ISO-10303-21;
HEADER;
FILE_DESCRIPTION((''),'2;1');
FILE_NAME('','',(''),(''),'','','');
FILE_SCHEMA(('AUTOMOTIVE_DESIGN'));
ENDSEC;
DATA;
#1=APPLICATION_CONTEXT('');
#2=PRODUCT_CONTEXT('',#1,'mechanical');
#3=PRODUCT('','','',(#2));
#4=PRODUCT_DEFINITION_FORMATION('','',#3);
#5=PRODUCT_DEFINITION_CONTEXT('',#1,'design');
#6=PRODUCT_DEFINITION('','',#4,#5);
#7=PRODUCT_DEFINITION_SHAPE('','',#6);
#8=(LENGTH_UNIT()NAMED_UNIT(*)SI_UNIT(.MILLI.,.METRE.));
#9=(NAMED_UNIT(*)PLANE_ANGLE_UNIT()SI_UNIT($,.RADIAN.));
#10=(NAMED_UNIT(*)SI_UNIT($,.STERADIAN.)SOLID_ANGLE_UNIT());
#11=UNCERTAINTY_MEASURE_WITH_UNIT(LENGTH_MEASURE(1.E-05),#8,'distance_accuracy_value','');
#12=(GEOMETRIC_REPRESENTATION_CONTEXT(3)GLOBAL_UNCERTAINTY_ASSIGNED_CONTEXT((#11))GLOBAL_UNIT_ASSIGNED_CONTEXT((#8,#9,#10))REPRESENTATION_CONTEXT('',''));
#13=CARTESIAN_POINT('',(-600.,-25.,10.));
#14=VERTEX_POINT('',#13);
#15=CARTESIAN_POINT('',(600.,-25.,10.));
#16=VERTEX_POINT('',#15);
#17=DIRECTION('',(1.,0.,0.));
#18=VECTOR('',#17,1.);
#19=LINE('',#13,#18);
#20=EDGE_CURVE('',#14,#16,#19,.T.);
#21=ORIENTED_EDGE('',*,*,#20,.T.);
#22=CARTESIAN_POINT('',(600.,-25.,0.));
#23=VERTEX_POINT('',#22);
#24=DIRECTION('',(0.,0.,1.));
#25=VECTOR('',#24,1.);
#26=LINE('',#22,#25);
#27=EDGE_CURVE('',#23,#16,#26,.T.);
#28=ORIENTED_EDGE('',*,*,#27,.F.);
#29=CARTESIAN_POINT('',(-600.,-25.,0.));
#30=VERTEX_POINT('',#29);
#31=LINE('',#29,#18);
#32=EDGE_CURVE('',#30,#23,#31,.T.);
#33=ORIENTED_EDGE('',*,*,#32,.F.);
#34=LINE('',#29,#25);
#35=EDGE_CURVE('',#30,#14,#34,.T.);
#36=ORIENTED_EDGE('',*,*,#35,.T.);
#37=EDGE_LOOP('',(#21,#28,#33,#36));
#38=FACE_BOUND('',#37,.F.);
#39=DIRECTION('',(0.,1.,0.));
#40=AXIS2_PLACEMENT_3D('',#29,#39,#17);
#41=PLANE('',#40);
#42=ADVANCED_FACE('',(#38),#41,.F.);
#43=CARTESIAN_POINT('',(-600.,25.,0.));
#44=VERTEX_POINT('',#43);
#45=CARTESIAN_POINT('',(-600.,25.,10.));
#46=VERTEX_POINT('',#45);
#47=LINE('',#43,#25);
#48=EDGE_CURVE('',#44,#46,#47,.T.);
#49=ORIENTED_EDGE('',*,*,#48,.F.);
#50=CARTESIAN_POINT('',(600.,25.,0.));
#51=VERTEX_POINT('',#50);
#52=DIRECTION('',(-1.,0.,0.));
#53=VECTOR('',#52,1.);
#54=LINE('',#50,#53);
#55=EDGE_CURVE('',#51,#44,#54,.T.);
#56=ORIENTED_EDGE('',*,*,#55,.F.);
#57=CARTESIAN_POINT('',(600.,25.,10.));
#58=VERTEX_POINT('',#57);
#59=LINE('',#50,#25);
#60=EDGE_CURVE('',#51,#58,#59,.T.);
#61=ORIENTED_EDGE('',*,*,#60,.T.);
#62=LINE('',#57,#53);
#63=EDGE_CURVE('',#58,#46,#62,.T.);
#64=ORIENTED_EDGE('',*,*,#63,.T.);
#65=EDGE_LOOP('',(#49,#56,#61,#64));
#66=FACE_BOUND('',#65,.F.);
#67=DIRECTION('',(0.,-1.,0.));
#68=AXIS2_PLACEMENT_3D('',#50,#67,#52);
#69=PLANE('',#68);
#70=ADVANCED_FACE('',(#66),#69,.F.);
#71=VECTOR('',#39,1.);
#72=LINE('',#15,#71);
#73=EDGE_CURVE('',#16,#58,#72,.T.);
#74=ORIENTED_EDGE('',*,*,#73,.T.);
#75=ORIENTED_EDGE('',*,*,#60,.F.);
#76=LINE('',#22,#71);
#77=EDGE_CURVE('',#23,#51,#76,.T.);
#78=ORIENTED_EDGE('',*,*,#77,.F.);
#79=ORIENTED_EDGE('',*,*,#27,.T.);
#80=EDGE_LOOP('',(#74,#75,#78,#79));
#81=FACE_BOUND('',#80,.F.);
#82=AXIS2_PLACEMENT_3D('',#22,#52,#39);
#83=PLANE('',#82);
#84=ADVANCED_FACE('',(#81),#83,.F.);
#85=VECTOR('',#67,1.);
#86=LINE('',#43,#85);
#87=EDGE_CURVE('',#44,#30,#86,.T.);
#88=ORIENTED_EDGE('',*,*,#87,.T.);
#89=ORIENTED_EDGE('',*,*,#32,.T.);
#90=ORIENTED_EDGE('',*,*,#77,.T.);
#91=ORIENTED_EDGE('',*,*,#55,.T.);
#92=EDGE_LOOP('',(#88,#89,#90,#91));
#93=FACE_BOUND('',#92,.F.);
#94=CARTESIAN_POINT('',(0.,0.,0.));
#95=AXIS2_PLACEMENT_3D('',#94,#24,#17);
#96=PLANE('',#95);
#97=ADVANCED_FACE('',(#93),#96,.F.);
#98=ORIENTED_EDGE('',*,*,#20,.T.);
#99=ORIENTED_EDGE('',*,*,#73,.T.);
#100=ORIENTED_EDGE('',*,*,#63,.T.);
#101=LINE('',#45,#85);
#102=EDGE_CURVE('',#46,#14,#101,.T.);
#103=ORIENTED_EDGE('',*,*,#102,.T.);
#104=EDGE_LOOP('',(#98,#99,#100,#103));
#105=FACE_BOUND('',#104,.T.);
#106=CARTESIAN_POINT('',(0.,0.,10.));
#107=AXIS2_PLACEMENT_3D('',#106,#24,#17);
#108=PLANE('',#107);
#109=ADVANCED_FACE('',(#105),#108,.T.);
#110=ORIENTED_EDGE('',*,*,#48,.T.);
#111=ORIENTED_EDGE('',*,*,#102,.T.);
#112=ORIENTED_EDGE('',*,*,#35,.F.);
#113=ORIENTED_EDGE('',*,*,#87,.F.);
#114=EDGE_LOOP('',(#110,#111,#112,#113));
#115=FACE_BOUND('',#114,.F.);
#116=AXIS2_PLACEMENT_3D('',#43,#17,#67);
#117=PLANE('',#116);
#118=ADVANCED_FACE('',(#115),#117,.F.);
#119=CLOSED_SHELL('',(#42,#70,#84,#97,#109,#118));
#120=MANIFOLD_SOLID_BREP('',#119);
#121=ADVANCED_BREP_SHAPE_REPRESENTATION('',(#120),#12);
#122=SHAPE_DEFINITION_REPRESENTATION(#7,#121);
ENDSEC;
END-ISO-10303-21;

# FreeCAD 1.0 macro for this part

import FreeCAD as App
import Part
import Sketcher
Q = App.Units.Quantity

doc = App.newDocument("Part")
body = doc.addObject("PartDesign::Body", "Body")

# Sketch on XY plane
sketch1 = body.newObject("Sketcher::SketchObject", "Sketch")
sketch1.AttachmentSupport = (doc.getObject("XY_Plane"), [""])
sketch1.MapMode = "FlatFace"
sketch1.addGeometry(Part.LineSegment(App.Vector(-600, 25, 0), App.Vector(-600, -25, 0)), False)
sketch1.addGeometry(Part.LineSegment(App.Vector(-600, -25, 0), App.Vector(600, -25, 0)), False)
sketch1.addGeometry(Part.LineSegment(App.Vector(600, -25, 0), App.Vector(600, 25, 0)), False)
sketch1.addGeometry(Part.LineSegment(App.Vector(600, 25, 0), App.Vector(-600, 25, 0)), False)
sketch1.addConstraint(Sketcher.Constraint("Coincident", 0, 2, 1, 1))
sketch1.addConstraint(Sketcher.Constraint("Coincident", 1, 2, 2, 1))
sketch1.addConstraint(Sketcher.Constraint("Coincident", 2, 2, 3, 1))
sketch1.addConstraint(Sketcher.Constraint("Coincident", 3, 2, 0, 1))
sketch1.addConstraint(Sketcher.Constraint("Vertical", 0))
sketch1.addConstraint(Sketcher.Constraint("Horizontal", 1))
sketch1.addConstraint(Sketcher.Constraint("Vertical", 2))
sketch1.addConstraint(Sketcher.Constraint("Horizontal", 3))
sketch1.addConstraint(Sketcher.Constraint("Symmetric", 0, 2, 2, 2, -1, 1))
sketch1.addConstraint(Sketcher.Constraint("DistanceX", 1, 1, 1, 2, Q("1200 mm")))
sketch1.addConstraint(Sketcher.Constraint("DistanceY", 0, 2, 0, 1, Q("50 mm")))
pad1 = body.newObject("PartDesign::Pad", "Pad")
pad1.Profile = sketch1
pad1.Length = 10

doc.recompute()
